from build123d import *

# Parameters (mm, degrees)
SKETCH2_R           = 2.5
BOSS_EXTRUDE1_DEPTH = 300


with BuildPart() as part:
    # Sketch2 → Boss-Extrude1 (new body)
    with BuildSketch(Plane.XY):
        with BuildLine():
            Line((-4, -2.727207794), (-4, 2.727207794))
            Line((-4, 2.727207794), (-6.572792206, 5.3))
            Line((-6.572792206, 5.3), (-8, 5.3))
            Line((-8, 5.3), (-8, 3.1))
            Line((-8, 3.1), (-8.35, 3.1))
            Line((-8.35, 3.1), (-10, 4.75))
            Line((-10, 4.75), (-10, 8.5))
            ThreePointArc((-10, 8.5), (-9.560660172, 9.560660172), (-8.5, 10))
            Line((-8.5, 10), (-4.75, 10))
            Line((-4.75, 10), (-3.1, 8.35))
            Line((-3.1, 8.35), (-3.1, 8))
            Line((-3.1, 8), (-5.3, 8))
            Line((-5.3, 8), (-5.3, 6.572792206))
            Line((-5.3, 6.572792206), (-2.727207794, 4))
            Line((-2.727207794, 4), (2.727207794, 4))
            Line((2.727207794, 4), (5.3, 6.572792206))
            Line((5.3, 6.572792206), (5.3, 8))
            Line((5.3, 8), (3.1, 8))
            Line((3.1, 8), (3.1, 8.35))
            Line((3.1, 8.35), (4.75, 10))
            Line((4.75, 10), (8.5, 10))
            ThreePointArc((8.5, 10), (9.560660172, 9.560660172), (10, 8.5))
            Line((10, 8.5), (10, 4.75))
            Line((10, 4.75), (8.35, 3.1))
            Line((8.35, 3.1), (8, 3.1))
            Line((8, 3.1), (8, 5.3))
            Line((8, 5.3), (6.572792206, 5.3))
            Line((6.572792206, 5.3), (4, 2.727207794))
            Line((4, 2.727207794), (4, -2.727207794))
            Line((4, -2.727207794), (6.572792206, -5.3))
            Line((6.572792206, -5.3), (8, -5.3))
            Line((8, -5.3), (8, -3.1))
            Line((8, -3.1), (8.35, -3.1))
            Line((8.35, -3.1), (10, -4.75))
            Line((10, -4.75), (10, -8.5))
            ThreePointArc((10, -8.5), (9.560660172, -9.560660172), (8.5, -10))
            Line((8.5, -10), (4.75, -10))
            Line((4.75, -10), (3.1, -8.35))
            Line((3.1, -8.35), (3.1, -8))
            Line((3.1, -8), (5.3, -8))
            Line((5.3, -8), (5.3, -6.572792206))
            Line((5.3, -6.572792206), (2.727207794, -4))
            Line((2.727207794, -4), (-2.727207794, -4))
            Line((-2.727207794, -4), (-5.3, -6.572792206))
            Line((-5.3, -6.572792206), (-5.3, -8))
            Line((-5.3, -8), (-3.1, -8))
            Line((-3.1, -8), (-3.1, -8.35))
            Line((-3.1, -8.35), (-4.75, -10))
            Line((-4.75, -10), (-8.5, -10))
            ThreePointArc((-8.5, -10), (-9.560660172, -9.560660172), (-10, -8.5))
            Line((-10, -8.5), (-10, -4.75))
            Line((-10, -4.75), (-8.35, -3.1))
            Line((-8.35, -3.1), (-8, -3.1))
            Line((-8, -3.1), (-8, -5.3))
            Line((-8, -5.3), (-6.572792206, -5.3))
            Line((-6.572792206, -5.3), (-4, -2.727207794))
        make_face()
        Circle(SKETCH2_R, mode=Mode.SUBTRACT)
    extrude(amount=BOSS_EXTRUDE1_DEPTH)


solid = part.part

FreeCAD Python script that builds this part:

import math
import FreeCAD as App
import Part
import Sketcher
Q = App.Units.Quantity

doc = App.newDocument("Part")
params = doc.addObject("Spreadsheet::Sheet", "Params")
for row, (alias, value) in enumerate([
    ("sketch1_diameter", "5 mm"),
    ("sketch1_radius", "1.5 mm"),
    ("sketch1_width", "2.2 mm"),
    ("sketch1_width2", "0.35 mm"),
    ("sketch1_width3", "3.75 mm"),
    ("pad1_length", "300 mm"),
], start=1):
    params.set(f"A{row}", alias)
    params.set(f"B{row}", "=" + value)
    params.setAlias(f"B{row}", alias)

body = doc.addObject("PartDesign::Body", "Body")

sketch1 = doc.addObject("Sketcher::SketchObject", "Sketch")
body.addObject(sketch1)
sketch1.AttachmentSupport = (doc.XY_Plane, [""])
sketch1.MapMode = "FlatFace"
sketch1.addGeometry([
    Part.LineSegment(App.Vector(-4, 2.727208, 0), App.Vector(-4, -2.727208, 0)),
    Part.LineSegment(App.Vector(-4, -2.727208, 0), App.Vector(-6.572792, -5.3, 0)),
    Part.LineSegment(App.Vector(-6.572792, -5.3, 0), App.Vector(-8, -5.3, 0)),
    Part.LineSegment(App.Vector(-8, -5.3, 0), App.Vector(-8, -3.1, 0)),
    Part.LineSegment(App.Vector(-8, -3.1, 0), App.Vector(-8.35, -3.1, 0)),
    Part.LineSegment(App.Vector(-8.35, -3.1, 0), App.Vector(-10, -4.75, 0)),
    Part.LineSegment(App.Vector(-10, -4.75, 0), App.Vector(-10, -8.5, 0)),
    Part.ArcOfCircle(Part.Circle(App.Vector(-8.5, -8.5, 0), App.Vector(0, 0, 1), 1.5), math.radians(180), math.radians(270)),
    Part.LineSegment(App.Vector(-8.5, -10, 0), App.Vector(-4.75, -10, 0)),
    Part.LineSegment(App.Vector(-4.75, -10, 0), App.Vector(-3.1, -8.35, 0)),
    Part.LineSegment(App.Vector(-3.1, -8.35, 0), App.Vector(-3.1, -8, 0)),
    Part.LineSegment(App.Vector(-3.1, -8, 0), App.Vector(-5.3, -8, 0)),
    Part.LineSegment(App.Vector(-5.3, -8, 0), App.Vector(-5.3, -6.572792, 0)),
    Part.LineSegment(App.Vector(-5.3, -6.572792, 0), App.Vector(-2.727208, -4, 0)),
    Part.LineSegment(App.Vector(-2.727208, -4, 0), App.Vector(2.727208, -4, 0)),
    Part.LineSegment(App.Vector(2.727208, -4, 0), App.Vector(5.3, -6.572792, 0)),
    Part.LineSegment(App.Vector(5.3, -6.572792, 0), App.Vector(5.3, -8, 0)),
    Part.LineSegment(App.Vector(5.3, -8, 0), App.Vector(3.1, -8, 0)),
    Part.LineSegment(App.Vector(3.1, -8, 0), App.Vector(3.1, -8.35, 0)),
    Part.LineSegment(App.Vector(3.1, -8.35, 0), App.Vector(4.75, -10, 0)),
    Part.LineSegment(App.Vector(4.75, -10, 0), App.Vector(8.5, -10, 0)),
    Part.ArcOfCircle(Part.Circle(App.Vector(8.5, -8.5, 0), App.Vector(0, 0, 1), 1.5), math.radians(-90), math.radians(0)),
    Part.LineSegment(App.Vector(10, -8.5, 0), App.Vector(10, -4.75, 0)),
    Part.LineSegment(App.Vector(10, -4.75, 0), App.Vector(8.35, -3.1, 0)),
    Part.LineSegment(App.Vector(8.35, -3.1, 0), App.Vector(8, -3.1, 0)),
    Part.LineSegment(App.Vector(8, -3.1, 0), App.Vector(8, -5.3, 0)),
    Part.LineSegment(App.Vector(8, -5.3, 0), App.Vector(6.572792, -5.3, 0)),
    Part.LineSegment(App.Vector(6.572792, -5.3, 0), App.Vector(4, -2.727208, 0)),
    Part.LineSegment(App.Vector(4, -2.727208, 0), App.Vector(4, 2.727208, 0)),
    Part.LineSegment(App.Vector(4, 2.727208, 0), App.Vector(6.572792, 5.3, 0)),
    Part.LineSegment(App.Vector(6.572792, 5.3, 0), App.Vector(8, 5.3, 0)),
    Part.LineSegment(App.Vector(8, 5.3, 0), App.Vector(8, 3.1, 0)),
    Part.LineSegment(App.Vector(8, 3.1, 0), App.Vector(8.35, 3.1, 0)),
    Part.LineSegment(App.Vector(8.35, 3.1, 0), App.Vector(10, 4.75, 0)),
    Part.LineSegment(App.Vector(10, 4.75, 0), App.Vector(10, 8.5, 0)),
    Part.ArcOfCircle(Part.Circle(App.Vector(8.5, 8.5, 0), App.Vector(0, 0, 1), 1.5), math.radians(0), math.radians(90)),
    Part.LineSegment(App.Vector(8.5, 10, 0), App.Vector(4.75, 10, 0)),
    Part.LineSegment(App.Vector(4.75, 10, 0), App.Vector(3.1, 8.35, 0)),
    Part.LineSegment(App.Vector(3.1, 8.35, 0), App.Vector(3.1, 8, 0)),
    Part.LineSegment(App.Vector(3.1, 8, 0), App.Vector(5.3, 8, 0)),
    Part.LineSegment(App.Vector(5.3, 8, 0), App.Vector(5.3, 6.572792, 0)),
    Part.LineSegment(App.Vector(5.3, 6.572792, 0), App.Vector(2.727208, 4, 0)),
    Part.LineSegment(App.Vector(2.727208, 4, 0), App.Vector(-2.727208, 4, 0)),
    Part.LineSegment(App.Vector(-2.727208, 4, 0), App.Vector(-5.3, 6.572792, 0)),
    Part.LineSegment(App.Vector(-5.3, 6.572792, 0), App.Vector(-5.3, 8, 0)),
    Part.LineSegment(App.Vector(-5.3, 8, 0), App.Vector(-3.1, 8, 0)),
    Part.LineSegment(App.Vector(-3.1, 8, 0), App.Vector(-3.1, 8.35, 0)),
    Part.LineSegment(App.Vector(-3.1, 8.35, 0), App.Vector(-4.75, 10, 0)),
    Part.LineSegment(App.Vector(-4.75, 10, 0), App.Vector(-8.5, 10, 0)),
    Part.ArcOfCircle(Part.Circle(App.Vector(-8.5, 8.5, 0), App.Vector(0, 0, 1), 1.5), math.radians(90), math.radians(180)),
    Part.LineSegment(App.Vector(-10, 8.5, 0), App.Vector(-10, 4.75, 0)),
    Part.LineSegment(App.Vector(-10, 4.75, 0), App.Vector(-8.35, 3.1, 0)),
    Part.LineSegment(App.Vector(-8.35, 3.1, 0), App.Vector(-8, 3.1, 0)),
    Part.LineSegment(App.Vector(-8, 3.1, 0), App.Vector(-8, 5.3, 0)),
    Part.LineSegment(App.Vector(-8, 5.3, 0), App.Vector(-6.572792, 5.3, 0)),
    Part.LineSegment(App.Vector(-6.572792, 5.3, 0), App.Vector(-4, 2.727208, 0)),
    Part.Circle(App.Vector(0, 0, 0), App.Vector(0, 0, 1), 2.5),
], False)
sketch1.addConstraint([
    Sketcher.Constraint("Coincident", 0, 2, 1, 1),
    Sketcher.Constraint("Coincident", 1, 2, 2, 1),
    Sketcher.Constraint("Coincident", 2, 2, 3, 1),
    Sketcher.Constraint("Coincident", 3, 2, 4, 1),
    Sketcher.Constraint("Coincident", 4, 2, 5, 1),
    Sketcher.Constraint("Coincident", 5, 2, 6, 1),
    Sketcher.Constraint("Tangent", 6, 2, 7, 1),
    Sketcher.Constraint("Tangent", 7, 2, 8, 1),
    Sketcher.Constraint("Coincident", 8, 2, 9, 1),
    Sketcher.Constraint("Coincident", 9, 2, 10, 1),
    Sketcher.Constraint("Coincident", 10, 2, 11, 1),
    Sketcher.Constraint("Coincident", 11, 2, 12, 1),
    Sketcher.Constraint("Coincident", 12, 2, 13, 1),
    Sketcher.Constraint("Coincident", 13, 2, 14, 1),
    Sketcher.Constraint("Coincident", 14, 2, 15, 1),
    Sketcher.Constraint("Coincident", 15, 2, 16, 1),
    Sketcher.Constraint("Coincident", 16, 2, 17, 1),
    Sketcher.Constraint("Coincident", 17, 2, 18, 1),
    Sketcher.Constraint("Coincident", 18, 2, 19, 1),
    Sketcher.Constraint("Coincident", 19, 2, 20, 1),
    Sketcher.Constraint("Tangent", 20, 2, 21, 1),
    Sketcher.Constraint("Tangent", 21, 2, 22, 1),
    Sketcher.Constraint("Coincident", 22, 2, 23, 1),
    Sketcher.Constraint("Coincident", 23, 2, 24, 1),
    Sketcher.Constraint("Coincident", 24, 2, 25, 1),
    Sketcher.Constraint("Coincident", 25, 2, 26, 1),
    Sketcher.Constraint("Coincident", 26, 2, 27, 1),
    Sketcher.Constraint("Coincident", 27, 2, 28, 1),
    Sketcher.Constraint("Coincident", 28, 2, 29, 1),
    Sketcher.Constraint("Coincident", 29, 2, 30, 1),
    Sketcher.Constraint("Coincident", 30, 2, 31, 1),
    Sketcher.Constraint("Coincident", 31, 2, 32, 1),
    Sketcher.Constraint("Coincident", 32, 2, 33, 1),
    Sketcher.Constraint("Coincident", 33, 2, 34, 1),
    Sketcher.Constraint("Tangent", 34, 2, 35, 1),
    Sketcher.Constraint("Tangent", 35, 2, 36, 1),
    Sketcher.Constraint("Coincident", 36, 2, 37, 1),
    Sketcher.Constraint("Coincident", 37, 2, 38, 1),
    Sketcher.Constraint("Coincident", 38, 2, 39, 1),
    Sketcher.Constraint("Coincident", 39, 2, 40, 1),
    Sketcher.Constraint("Coincident", 40, 2, 41, 1),
    Sketcher.Constraint("Coincident", 41, 2, 42, 1),
    Sketcher.Constraint("Coincident", 42, 2, 43, 1),
    Sketcher.Constraint("Coincident", 43, 2, 44, 1),
    Sketcher.Constraint("Coincident", 44, 2, 45, 1),
    Sketcher.Constraint("Coincident", 45, 2, 46, 1),
    Sketcher.Constraint("Coincident", 46, 2, 47, 1),
    Sketcher.Constraint("Coincident", 47, 2, 48, 1),
    Sketcher.Constraint("Tangent", 48, 2, 49, 1),
    Sketcher.Constraint("Tangent", 49, 2, 50, 1),
    Sketcher.Constraint("Coincident", 50, 2, 51, 1),
    Sketcher.Constraint("Coincident", 51, 2, 52, 1),
    Sketcher.Constraint("Coincident", 52, 2, 53, 1),
    Sketcher.Constraint("Coincident", 53, 2, 54, 1),
    Sketcher.Constraint("Coincident", 54, 2, 55, 1),
    Sketcher.Constraint("Coincident", 55, 2, 0, 1),
    Sketcher.Constraint("Vertical", 0),
    Sketcher.Constraint("Horizontal", 2),
    Sketcher.Constraint("Vertical", 3),
    Sketcher.Constraint("Horizontal", 4),
    Sketcher.Constraint("Vertical", 6),
    Sketcher.Constraint("Horizontal", 8),
    Sketcher.Constraint("Vertical", 10),
    Sketcher.Constraint("Horizontal", 11),
    Sketcher.Constraint("Vertical", 12),
    Sketcher.Constraint("Horizontal", 14),
    Sketcher.Constraint("Vertical", 16),
    Sketcher.Constraint("Horizontal", 17),
    Sketcher.Constraint("Vertical", 18),
    Sketcher.Constraint("Horizontal", 20),
    Sketcher.Constraint("Vertical", 22),
    Sketcher.Constraint("Horizontal", 24),
    Sketcher.Constraint("Vertical", 25),
    Sketcher.Constraint("Horizontal", 26),
    Sketcher.Constraint("Vertical", 28),
    Sketcher.Constraint("Horizontal", 30),
    Sketcher.Constraint("Vertical", 31),
    Sketcher.Constraint("Horizontal", 32),
    Sketcher.Constraint("Vertical", 34),
    Sketcher.Constraint("Horizontal", 36),
    Sketcher.Constraint("Vertical", 38),
    Sketcher.Constraint("Horizontal", 39),
    Sketcher.Constraint("Vertical", 40),
    Sketcher.Constraint("Horizontal", 42),
    Sketcher.Constraint("Vertical", 44),
    Sketcher.Constraint("Horizontal", 45),
    Sketcher.Constraint("Vertical", 46),
    Sketcher.Constraint("Horizontal", 48),
    Sketcher.Constraint("Vertical", 50),
    Sketcher.Constraint("Horizontal", 52),
    Sketcher.Constraint("Vertical", 53),
    Sketcher.Constraint("Horizontal", 54),
    Sketcher.Constraint("Coincident", 56, 3, -1, 1),
    Sketcher.Constraint("Equal", 7, 21),
    Sketcher.Constraint("Equal", 21, 35),
    Sketcher.Constraint("Equal", 35, 49),
    Sketcher.Constraint("Symmetric", 7, 3, 35, 3, -1, 1),
    Sketcher.Constraint("Symmetric", 21, 3, 49, 3, -1, 1),
    Sketcher.Constraint("Symmetric", 0, 2, 28, 2, -1, 1),
    Sketcher.Constraint("Symmetric", 1, 2, 29, 2, -1, 1),
    Sketcher.Constraint("Symmetric", 3, 2, 31, 2, -1, 1),
    Sketcher.Constraint("Symmetric", 9, 2, 37, 2, -1, 1),
    Sketcher.Constraint("Symmetric", 11, 2, 39, 2, -1, 1),
    Sketcher.Constraint("Symmetric", 13, 2, 41, 2, -1, 1),
    Sketcher.Constraint("Symmetric", 15, 2, 43, 2, -1, 1),
    Sketcher.Constraint("Symmetric", 17, 2, 45, 2, -1, 1),
    Sketcher.Constraint("Symmetric", 23, 2, 51, 2, -1, 1),
    Sketcher.Constraint("Symmetric", 25, 2, 53, 2, -1, 1),
    Sketcher.Constraint("Symmetric", 7, 3, 21, 3, -2),
    Sketcher.Constraint("Symmetric", 12, 2, 15, 2, -2),
    Sketcher.Constraint("Symmetric", 10, 2, 17, 2, -2),
    Sketcher.Constraint("Symmetric", 4, 2, 23, 2, -2),
    Sketcher.Constraint("Symmetric", 2, 2, 25, 2, -2),
    Sketcher.Constraint("Parallel", 1, 5),
    Sketcher.Constraint("Parallel", 5, 9),
    Sketcher.Constraint("Parallel", 9, 13),
    Sketcher.Constraint("Perpendicular", 13, 15),
    Sketcher.Constraint("Parallel", 15, 19),
    Sketcher.Constraint("Parallel", 19, 23),
    Sketcher.Constraint("Parallel", 23, 27),
    Sketcher.Constraint("Parallel", 29, 33),
    Sketcher.Constraint("Parallel", 33, 37),
    Sketcher.Constraint("Parallel", 37, 41),
    Sketcher.Constraint("Perpendicular", 41, 43),
    Sketcher.Constraint("Parallel", 43, 47),
    Sketcher.Constraint("Parallel", 47, 51),
    Sketcher.Constraint("Parallel", 51, 55),
    Sketcher.Constraint("Horizontal", 9, 2, 18, 2),
    Sketcher.Constraint("Horizontal", 5, 2, 22, 2),
    Sketcher.Constraint("Horizontal", 0, 2, 27, 2),
    Sketcher.Constraint("Horizontal", 37, 2, 46, 2),
    Sketcher.Constraint("Horizontal", 33, 2, 50, 2),
    Sketcher.Constraint("Horizontal", 28, 2, 55, 2),
    Sketcher.Constraint("Equal", 42, 0),
    Sketcher.Constraint("Equal", 45, 3),
    Sketcher.Constraint("Equal", 48, 6),
    Sketcher.Constraint("Equal", 52, 10),
    Sketcher.Constraint("Equal", 54, 12),
    Sketcher.Constraint("Equal", 5, 9),
    Sketcher.Constraint("Equal", 1, 13),
    Sketcher.Constraint("Diameter", 56, Q("5 mm")),
    Sketcher.Constraint("Radius", 7, Q("1.5 mm")),
    Sketcher.Constraint("DistanceX", 11, 2, 11, 1, Q("2.2 mm")),
    Sketcher.Constraint("DistanceX", 0, 2, -1, 1, Q("4 mm")),
    Sketcher.Constraint("DistanceX", 2, 2, -1, 1, Q("8 mm")),
    Sketcher.Constraint("DistanceX", 5, 2, -1, 1, Q("10 mm")),
    Sketcher.Constraint("DistanceX", 4, 2, 4, 1, Q("0.35 mm")),
    Sketcher.Constraint("DistanceX", 8, 1, 8, 2, Q("3.75 mm")),
    Sketcher.Constraint("DistanceX", 2, 2, 2, 1, Q("1.427208 mm")),
])
sketch1.setExpression("Constraints[140]", "Params.sketch1_diameter")
sketch1.setExpression("Constraints[141]", "Params.sketch1_radius")
sketch1.setExpression("Constraints[142]", "Params.sketch1_width")
sketch1.setExpression("Constraints[146]", "Params.sketch1_width2")
sketch1.setExpression("Constraints[147]", "Params.sketch1_width3")
pad1 = doc.addObject("PartDesign::Pad", "Pad")
body.addObject(pad1)
pad1.Profile = sketch1
pad1.setExpression("Length", "Params.pad1_length")

doc.recompute()
